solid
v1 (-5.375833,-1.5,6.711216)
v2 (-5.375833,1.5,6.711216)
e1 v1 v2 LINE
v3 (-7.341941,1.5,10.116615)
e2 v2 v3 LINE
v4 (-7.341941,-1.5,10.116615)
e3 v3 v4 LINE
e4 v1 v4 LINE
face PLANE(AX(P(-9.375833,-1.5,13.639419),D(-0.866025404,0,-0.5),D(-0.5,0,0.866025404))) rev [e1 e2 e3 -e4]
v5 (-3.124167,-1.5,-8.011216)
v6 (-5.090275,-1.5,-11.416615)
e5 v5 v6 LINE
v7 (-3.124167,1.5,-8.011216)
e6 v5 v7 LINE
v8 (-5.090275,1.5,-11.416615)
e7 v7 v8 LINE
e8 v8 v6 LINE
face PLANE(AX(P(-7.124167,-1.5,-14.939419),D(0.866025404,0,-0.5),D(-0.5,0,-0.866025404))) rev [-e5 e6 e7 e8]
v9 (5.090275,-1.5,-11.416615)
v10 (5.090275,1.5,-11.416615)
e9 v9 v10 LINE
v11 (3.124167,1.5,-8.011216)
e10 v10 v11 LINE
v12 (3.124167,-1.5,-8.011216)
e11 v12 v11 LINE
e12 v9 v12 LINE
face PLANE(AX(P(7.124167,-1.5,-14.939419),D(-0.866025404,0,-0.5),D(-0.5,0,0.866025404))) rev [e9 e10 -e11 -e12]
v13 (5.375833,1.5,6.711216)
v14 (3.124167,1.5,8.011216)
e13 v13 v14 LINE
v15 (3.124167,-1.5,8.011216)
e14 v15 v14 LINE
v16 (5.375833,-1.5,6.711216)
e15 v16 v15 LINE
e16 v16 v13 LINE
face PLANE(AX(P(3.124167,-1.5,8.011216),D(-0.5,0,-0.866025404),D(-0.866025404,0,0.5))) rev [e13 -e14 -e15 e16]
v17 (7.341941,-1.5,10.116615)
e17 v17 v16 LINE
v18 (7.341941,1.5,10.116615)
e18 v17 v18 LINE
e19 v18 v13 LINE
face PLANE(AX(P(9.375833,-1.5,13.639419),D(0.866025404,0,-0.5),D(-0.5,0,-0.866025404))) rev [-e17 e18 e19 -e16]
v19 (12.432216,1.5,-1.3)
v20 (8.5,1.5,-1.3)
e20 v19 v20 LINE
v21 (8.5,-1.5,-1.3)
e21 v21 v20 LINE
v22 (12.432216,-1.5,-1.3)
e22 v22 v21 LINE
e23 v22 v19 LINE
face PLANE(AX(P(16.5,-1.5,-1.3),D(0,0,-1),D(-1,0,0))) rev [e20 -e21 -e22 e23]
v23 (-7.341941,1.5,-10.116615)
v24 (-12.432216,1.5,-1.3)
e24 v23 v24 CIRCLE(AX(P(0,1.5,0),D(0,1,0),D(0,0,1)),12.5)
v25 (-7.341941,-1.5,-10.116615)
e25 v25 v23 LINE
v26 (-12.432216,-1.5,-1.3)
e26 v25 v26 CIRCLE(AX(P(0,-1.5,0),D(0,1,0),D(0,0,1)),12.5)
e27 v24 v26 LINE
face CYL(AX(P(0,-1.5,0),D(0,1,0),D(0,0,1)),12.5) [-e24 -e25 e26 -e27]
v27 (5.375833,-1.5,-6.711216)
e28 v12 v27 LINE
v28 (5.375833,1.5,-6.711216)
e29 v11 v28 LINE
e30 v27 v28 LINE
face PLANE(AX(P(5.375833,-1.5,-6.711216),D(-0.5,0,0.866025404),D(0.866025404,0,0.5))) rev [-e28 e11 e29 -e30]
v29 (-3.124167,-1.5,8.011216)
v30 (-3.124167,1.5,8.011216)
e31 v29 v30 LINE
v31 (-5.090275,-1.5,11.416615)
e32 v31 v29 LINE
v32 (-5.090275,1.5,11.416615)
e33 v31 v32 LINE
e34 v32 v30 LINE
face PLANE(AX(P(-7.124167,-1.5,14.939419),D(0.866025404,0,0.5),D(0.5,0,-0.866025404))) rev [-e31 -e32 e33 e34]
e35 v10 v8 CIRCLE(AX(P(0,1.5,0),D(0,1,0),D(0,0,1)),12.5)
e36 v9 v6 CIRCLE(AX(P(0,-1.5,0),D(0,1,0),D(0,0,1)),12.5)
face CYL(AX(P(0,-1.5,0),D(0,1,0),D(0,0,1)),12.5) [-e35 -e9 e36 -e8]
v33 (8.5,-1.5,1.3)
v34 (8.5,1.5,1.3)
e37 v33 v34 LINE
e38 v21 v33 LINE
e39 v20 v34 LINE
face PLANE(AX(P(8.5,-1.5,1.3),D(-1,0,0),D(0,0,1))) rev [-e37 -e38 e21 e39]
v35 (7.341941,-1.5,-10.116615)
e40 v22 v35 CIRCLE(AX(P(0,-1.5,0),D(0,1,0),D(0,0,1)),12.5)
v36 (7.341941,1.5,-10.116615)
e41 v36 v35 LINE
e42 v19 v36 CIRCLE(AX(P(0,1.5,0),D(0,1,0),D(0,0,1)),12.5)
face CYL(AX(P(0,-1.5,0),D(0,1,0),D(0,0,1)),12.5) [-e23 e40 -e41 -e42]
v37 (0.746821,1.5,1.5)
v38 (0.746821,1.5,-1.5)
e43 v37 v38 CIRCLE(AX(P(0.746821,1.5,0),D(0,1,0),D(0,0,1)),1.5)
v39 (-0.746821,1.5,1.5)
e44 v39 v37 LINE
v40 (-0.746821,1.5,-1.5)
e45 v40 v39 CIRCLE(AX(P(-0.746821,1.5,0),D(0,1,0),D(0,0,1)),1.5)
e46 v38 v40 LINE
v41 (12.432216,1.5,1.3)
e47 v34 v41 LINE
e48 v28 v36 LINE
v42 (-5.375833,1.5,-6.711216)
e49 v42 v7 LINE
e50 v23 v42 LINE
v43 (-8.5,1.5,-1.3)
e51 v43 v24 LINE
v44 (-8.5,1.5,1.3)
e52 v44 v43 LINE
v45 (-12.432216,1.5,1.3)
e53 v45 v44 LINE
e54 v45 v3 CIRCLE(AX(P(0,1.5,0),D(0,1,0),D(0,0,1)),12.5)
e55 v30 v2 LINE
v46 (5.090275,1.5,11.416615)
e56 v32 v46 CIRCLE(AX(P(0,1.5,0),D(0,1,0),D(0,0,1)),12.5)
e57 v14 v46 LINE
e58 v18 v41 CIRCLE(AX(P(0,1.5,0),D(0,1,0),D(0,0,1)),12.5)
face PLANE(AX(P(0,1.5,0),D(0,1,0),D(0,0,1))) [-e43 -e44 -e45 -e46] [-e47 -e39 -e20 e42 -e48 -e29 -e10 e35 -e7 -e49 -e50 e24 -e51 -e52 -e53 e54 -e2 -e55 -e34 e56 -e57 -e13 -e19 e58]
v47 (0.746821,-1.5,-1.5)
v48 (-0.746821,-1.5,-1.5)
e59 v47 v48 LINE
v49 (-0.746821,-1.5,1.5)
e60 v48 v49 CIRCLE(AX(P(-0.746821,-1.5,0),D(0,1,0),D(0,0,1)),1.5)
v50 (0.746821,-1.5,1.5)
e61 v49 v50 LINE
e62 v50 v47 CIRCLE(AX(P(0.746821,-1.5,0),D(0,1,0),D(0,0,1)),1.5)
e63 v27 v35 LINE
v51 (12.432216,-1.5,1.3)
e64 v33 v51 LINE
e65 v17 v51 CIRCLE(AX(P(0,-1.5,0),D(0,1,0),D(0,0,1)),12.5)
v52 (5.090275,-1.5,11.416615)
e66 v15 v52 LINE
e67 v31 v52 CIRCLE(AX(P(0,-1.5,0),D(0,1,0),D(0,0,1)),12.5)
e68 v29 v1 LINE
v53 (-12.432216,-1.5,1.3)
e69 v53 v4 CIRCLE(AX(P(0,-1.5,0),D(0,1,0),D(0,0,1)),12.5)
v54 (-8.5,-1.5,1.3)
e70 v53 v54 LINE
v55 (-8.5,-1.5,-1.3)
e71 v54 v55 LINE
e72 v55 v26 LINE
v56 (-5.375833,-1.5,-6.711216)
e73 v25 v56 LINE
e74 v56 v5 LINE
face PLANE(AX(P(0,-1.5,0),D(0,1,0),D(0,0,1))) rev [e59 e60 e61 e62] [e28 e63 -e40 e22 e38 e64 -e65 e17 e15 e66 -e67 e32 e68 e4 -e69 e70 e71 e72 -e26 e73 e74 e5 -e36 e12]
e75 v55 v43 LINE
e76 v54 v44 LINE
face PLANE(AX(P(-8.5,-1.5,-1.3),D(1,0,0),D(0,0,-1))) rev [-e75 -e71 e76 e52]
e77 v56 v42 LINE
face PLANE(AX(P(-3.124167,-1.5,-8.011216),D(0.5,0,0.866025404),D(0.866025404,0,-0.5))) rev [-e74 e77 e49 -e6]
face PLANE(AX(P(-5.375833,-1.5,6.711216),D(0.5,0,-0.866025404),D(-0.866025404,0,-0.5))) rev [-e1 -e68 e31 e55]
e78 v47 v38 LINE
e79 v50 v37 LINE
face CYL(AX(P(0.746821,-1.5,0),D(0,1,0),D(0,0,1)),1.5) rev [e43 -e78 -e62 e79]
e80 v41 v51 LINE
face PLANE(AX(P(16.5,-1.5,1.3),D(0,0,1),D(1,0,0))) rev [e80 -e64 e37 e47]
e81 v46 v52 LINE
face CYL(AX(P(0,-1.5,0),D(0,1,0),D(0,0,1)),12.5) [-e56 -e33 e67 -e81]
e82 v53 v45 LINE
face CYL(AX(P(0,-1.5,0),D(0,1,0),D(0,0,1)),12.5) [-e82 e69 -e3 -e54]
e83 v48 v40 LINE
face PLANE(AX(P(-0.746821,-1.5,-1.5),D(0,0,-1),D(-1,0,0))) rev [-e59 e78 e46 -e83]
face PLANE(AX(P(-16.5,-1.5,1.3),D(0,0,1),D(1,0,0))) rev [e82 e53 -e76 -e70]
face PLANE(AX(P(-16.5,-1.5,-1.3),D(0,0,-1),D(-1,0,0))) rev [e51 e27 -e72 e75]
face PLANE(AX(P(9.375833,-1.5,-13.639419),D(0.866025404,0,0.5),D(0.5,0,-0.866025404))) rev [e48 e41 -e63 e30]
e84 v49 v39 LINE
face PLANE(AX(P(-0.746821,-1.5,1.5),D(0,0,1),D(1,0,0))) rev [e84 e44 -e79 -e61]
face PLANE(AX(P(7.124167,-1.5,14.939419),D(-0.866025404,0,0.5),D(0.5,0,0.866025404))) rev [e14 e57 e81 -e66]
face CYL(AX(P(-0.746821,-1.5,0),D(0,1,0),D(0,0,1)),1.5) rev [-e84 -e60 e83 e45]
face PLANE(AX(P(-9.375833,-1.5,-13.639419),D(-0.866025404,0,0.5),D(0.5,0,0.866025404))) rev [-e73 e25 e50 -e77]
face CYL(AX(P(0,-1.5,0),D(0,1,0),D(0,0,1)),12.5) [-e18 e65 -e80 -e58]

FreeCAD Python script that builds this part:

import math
import FreeCAD as App
import Part
import Sketcher
from FreeCAD import Vector
Q = App.Units.Quantity

doc = App.newDocument("Part")
body = doc.addObject("PartDesign::Body", "Body")

# Sketch on XZ plane
sketch1 = body.newObject("Sketcher::SketchObject", "Sketch")
sketch1.AttachmentSupport = (doc.getObject("XZ_Plane"), [""])
sketch1.MapMode = "FlatFace"
sketch1.addGeometry(Part.Circle(Vector(0, 0, 0), Vector(0, 0, 1), 12), False)
sketch1.addConstraint([
    Sketcher.Constraint("Coincident", 0, 3, -1, 1),
    Sketcher.Constraint("Diameter", 0, 25.0),
])
pad1 = body.newObject("PartDesign::Pad", "Pad")
pad1.Profile = sketch1
pad1.Type = "TwoLengths"
pad1.Length = 1.5
pad1.Length2 = 1.5
pad1.Reversed = True

# Sketch on XZ plane
sketch2 = body.newObject("Sketcher::SketchObject", "Sketch001")
sketch2.AttachmentSupport = (doc.getObject("XZ_Plane"), [""])
sketch2.MapMode = "FlatFace"
sketch2.AttachmentOffset = App.Placement(Vector(0, 0, -1.5), App.Rotation())
sketch2.addGeometry([
    Part.LineSegment(Vector(5.4, -6.7, 0), Vector(9.4, -13.6, 0)),  # 0
    Part.LineSegment(Vector(9.4, -13.6, 0), Vector(7.1, -14.9, 0)),  # 1
    Part.LineSegment(Vector(7.1, -14.9, 0), Vector(3.1, -8, 0)),  # 2
    Part.LineSegment(Vector(3.1, -8, 0), Vector(5.4, -6.7, 0)),  # 3
    Part.LineSegment(Vector(8.5, -1.3, 0), Vector(8.5, 1.3, 0)),  # 4
    Part.LineSegment(Vector(8.5, 1.3, 0), Vector(16.5, 1.3, 0)),  # 5
    Part.LineSegment(Vector(16.5, 1.3, 0), Vector(16.5, -1.3, 0)),  # 6
    Part.LineSegment(Vector(16.5, -1.3, 0), Vector(8.5, -1.3, 0)),  # 7
    Part.LineSegment(Vector(-3.1, -8, 0), Vector(-7.1, -14.9, 0)),  # 8
    Part.LineSegment(Vector(-7.1, -14.9, 0), Vector(-9.4, -13.6, 0)),  # 9
    Part.LineSegment(Vector(-9.4, -13.6, 0), Vector(-5.4, -6.7, 0)),  # 10
    Part.LineSegment(Vector(-5.4, -6.7, 0), Vector(-3.1, -8, 0)),  # 11
    Part.LineSegment(Vector(-16.5, -1.3, 0), Vector(-16.5, 1.3, 0)),  # 12
    Part.LineSegment(Vector(-16.5, 1.3, 0), Vector(-8.5, 1.3, 0)),  # 13
    Part.LineSegment(Vector(-8.5, 1.3, 0), Vector(-8.5, -1.3, 0)),  # 14
    Part.LineSegment(Vector(-8.5, -1.3, 0), Vector(-16.5, -1.3, 0)),  # 15
    Part.LineSegment(Vector(-5.4, 6.7, 0), Vector(-9.4, 13.6, 0)),  # 16
    Part.LineSegment(Vector(-9.4, 13.6, 0), Vector(-7.1, 14.9, 0)),  # 17
    Part.LineSegment(Vector(-7.1, 14.9, 0), Vector(-3.1, 8, 0)),  # 18
    Part.LineSegment(Vector(-3.1, 8, 0), Vector(-5.4, 6.7, 0)),  # 19
    Part.LineSegment(Vector(3.1, 8, 0), Vector(7.1, 14.9, 0)),  # 20
    Part.LineSegment(Vector(7.1, 14.9, 0), Vector(9.4, 13.6, 0)),  # 21
    Part.LineSegment(Vector(9.4, 13.6, 0), Vector(5.4, 6.7, 0)),  # 22
    Part.LineSegment(Vector(5.4, 6.7, 0), Vector(3.1, 8, 0)),  # 23
], False)
sketch2.addConstraint([
    Sketcher.Constraint("Coincident", 0, 2, 1, 1),
    Sketcher.Constraint("Coincident", 1, 2, 2, 1),
    Sketcher.Constraint("Coincident", 2, 2, 3, 1),
    Sketcher.Constraint("Coincident", 3, 2, 0, 1),
    Sketcher.Constraint("Coincident", 4, 2, 5, 1),
    Sketcher.Constraint("Coincident", 5, 2, 6, 1),
    Sketcher.Constraint("Coincident", 6, 2, 7, 1),
    Sketcher.Constraint("Coincident", 7, 2, 4, 1),
    Sketcher.Constraint("Coincident", 8, 2, 9, 1),
    Sketcher.Constraint("Coincident", 9, 2, 10, 1),
    Sketcher.Constraint("Coincident", 10, 2, 11, 1),
    Sketcher.Constraint("Coincident", 11, 2, 8, 1),
    Sketcher.Constraint("Coincident", 12, 2, 13, 1),
    Sketcher.Constraint("Coincident", 13, 2, 14, 1),
    Sketcher.Constraint("Coincident", 14, 2, 15, 1),
    Sketcher.Constraint("Coincident", 15, 2, 12, 1),
    Sketcher.Constraint("Coincident", 16, 2, 17, 1),
    Sketcher.Constraint("Coincident", 17, 2, 18, 1),
    Sketcher.Constraint("Coincident", 18, 2, 19, 1),
    Sketcher.Constraint("Coincident", 19, 2, 16, 1),
    Sketcher.Constraint("Coincident", 20, 2, 21, 1),
    Sketcher.Constraint("Coincident", 21, 2, 22, 1),
    Sketcher.Constraint("Coincident", 22, 2, 23, 1),
    Sketcher.Constraint("Coincident", 23, 2, 20, 1),
    Sketcher.Constraint("Vertical", 4),
    Sketcher.Constraint("Horizontal", 5),
    Sketcher.Constraint("Vertical", 6),
    Sketcher.Constraint("Horizontal", 7),
    Sketcher.Constraint("Vertical", 12),
    Sketcher.Constraint("Horizontal", 13),
    Sketcher.Constraint("Vertical", 14),
    Sketcher.Constraint("Horizontal", 15),
    Sketcher.Constraint("Symmetric", 6, 2, 12, 2, -1, 1),
    Sketcher.Constraint("Symmetric", 4, 2, 14, 2, -1, 1),
    Sketcher.Constraint("Symmetric", 0, 2, 16, 2, -1, 1),
    Sketcher.Constraint("Symmetric", 1, 2, 17, 2, -1, 1),
    Sketcher.Constraint("Symmetric", 2, 2, 18, 2, -1, 1),
    Sketcher.Constraint("Symmetric", 3, 2, 19, 2, -1, 1),
    Sketcher.Constraint("Symmetric", 8, 2, 20, 2, -1, 1),
    Sketcher.Constraint("Symmetric", 9, 2, 21, 2, -1, 1),
    Sketcher.Constraint("Symmetric", 10, 2, 22, 2, -1, 1),
    Sketcher.Constraint("Symmetric", 11, 2, 23, 2, -1, 1),
    Sketcher.Constraint("Symmetric", 1, 2, 8, 2, -2),
    Sketcher.Constraint("Symmetric", 0, 2, 9, 2, -2),
    Sketcher.Constraint("Symmetric", 3, 2, 10, 2, -2),
    Sketcher.Constraint("Symmetric", 2, 2, 11, 2, -2),
    Sketcher.Constraint("Perpendicular", 0, 1),
    Sketcher.Constraint("Perpendicular", 1, 2),
    Sketcher.Constraint("Perpendicular", 2, 3),
    Sketcher.Constraint("Horizontal", 5, 2, 12, 2),
    Sketcher.Constraint("DistanceX", 5, 1, 5, 2, 8.0),
    Sketcher.Constraint("Angle", 0, Q("-60 deg")),
    Sketcher.Constraint("Distance", 0, 8.0),
    Sketcher.Constraint("DistanceY", 4, 1, 4, 2, 2.6),
    Sketcher.Constraint("Distance", 1, 2.6),
    Sketcher.Constraint("DistanceX", -1, 1, 4, 2, 8.5),
    Sketcher.Constraint("DistanceX", 8, 2, 3, 2, 12.5),
    Sketcher.Constraint("DistanceY", 0, 2, -1, 1, 13.639419),
])
pocket1 = body.newObject("PartDesign::Pocket", "Pocket")
pocket1.Profile = sketch2
pocket1.Type = "ThroughAll"
pocket1.Reversed = True

# Sketch on XZ plane
sketch3 = body.newObject("Sketcher::SketchObject", "Sketch002")
sketch3.AttachmentSupport = (doc.getObject("XZ_Plane"), [""])
sketch3.MapMode = "FlatFace"
sketch3.addGeometry([
    Part.LineSegment(Vector(0.7, -1.5, 0), Vector(-0.7, -1.5, 0)),
    Part.ArcOfCircle(Part.Circle(Vector(-0.7, 0, 0), Vector(0, 0, 1), 1.5), math.radians(90), math.radians(270)),
    Part.LineSegment(Vector(-0.7, 1.5, 0), Vector(0.7, 1.5, 0)),
    Part.ArcOfCircle(Part.Circle(Vector(0.7, 0, 0), Vector(0, 0, 1), 1.5), math.radians(-90), math.radians(90)),
], False)
sketch3.addConstraint([
    Sketcher.Constraint("Tangent", 0, 2, 1, 2),
    Sketcher.Constraint("Tangent", 1, 1, 2, 1),
    Sketcher.Constraint("Tangent", 2, 2, 3, 2),
    Sketcher.Constraint("Tangent", 3, 1, 0, 1),
    Sketcher.Constraint("Horizontal", 0),
    Sketcher.Constraint("Horizontal", 2),
    Sketcher.Constraint("Symmetric", 1, 3, 3, 3, -1, 1),
    Sketcher.Constraint("Radius", 1, 1.5),
    Sketcher.Constraint("DistanceX", 0, 2, 0, 1, 1.493643),
])
pocket2 = body.newObject("PartDesign::Pocket", "Pocket001")
pocket2.Profile = sketch3
pocket2.Type = "ThroughAll"
pocket2.Midplane = True

doc.recompute()
